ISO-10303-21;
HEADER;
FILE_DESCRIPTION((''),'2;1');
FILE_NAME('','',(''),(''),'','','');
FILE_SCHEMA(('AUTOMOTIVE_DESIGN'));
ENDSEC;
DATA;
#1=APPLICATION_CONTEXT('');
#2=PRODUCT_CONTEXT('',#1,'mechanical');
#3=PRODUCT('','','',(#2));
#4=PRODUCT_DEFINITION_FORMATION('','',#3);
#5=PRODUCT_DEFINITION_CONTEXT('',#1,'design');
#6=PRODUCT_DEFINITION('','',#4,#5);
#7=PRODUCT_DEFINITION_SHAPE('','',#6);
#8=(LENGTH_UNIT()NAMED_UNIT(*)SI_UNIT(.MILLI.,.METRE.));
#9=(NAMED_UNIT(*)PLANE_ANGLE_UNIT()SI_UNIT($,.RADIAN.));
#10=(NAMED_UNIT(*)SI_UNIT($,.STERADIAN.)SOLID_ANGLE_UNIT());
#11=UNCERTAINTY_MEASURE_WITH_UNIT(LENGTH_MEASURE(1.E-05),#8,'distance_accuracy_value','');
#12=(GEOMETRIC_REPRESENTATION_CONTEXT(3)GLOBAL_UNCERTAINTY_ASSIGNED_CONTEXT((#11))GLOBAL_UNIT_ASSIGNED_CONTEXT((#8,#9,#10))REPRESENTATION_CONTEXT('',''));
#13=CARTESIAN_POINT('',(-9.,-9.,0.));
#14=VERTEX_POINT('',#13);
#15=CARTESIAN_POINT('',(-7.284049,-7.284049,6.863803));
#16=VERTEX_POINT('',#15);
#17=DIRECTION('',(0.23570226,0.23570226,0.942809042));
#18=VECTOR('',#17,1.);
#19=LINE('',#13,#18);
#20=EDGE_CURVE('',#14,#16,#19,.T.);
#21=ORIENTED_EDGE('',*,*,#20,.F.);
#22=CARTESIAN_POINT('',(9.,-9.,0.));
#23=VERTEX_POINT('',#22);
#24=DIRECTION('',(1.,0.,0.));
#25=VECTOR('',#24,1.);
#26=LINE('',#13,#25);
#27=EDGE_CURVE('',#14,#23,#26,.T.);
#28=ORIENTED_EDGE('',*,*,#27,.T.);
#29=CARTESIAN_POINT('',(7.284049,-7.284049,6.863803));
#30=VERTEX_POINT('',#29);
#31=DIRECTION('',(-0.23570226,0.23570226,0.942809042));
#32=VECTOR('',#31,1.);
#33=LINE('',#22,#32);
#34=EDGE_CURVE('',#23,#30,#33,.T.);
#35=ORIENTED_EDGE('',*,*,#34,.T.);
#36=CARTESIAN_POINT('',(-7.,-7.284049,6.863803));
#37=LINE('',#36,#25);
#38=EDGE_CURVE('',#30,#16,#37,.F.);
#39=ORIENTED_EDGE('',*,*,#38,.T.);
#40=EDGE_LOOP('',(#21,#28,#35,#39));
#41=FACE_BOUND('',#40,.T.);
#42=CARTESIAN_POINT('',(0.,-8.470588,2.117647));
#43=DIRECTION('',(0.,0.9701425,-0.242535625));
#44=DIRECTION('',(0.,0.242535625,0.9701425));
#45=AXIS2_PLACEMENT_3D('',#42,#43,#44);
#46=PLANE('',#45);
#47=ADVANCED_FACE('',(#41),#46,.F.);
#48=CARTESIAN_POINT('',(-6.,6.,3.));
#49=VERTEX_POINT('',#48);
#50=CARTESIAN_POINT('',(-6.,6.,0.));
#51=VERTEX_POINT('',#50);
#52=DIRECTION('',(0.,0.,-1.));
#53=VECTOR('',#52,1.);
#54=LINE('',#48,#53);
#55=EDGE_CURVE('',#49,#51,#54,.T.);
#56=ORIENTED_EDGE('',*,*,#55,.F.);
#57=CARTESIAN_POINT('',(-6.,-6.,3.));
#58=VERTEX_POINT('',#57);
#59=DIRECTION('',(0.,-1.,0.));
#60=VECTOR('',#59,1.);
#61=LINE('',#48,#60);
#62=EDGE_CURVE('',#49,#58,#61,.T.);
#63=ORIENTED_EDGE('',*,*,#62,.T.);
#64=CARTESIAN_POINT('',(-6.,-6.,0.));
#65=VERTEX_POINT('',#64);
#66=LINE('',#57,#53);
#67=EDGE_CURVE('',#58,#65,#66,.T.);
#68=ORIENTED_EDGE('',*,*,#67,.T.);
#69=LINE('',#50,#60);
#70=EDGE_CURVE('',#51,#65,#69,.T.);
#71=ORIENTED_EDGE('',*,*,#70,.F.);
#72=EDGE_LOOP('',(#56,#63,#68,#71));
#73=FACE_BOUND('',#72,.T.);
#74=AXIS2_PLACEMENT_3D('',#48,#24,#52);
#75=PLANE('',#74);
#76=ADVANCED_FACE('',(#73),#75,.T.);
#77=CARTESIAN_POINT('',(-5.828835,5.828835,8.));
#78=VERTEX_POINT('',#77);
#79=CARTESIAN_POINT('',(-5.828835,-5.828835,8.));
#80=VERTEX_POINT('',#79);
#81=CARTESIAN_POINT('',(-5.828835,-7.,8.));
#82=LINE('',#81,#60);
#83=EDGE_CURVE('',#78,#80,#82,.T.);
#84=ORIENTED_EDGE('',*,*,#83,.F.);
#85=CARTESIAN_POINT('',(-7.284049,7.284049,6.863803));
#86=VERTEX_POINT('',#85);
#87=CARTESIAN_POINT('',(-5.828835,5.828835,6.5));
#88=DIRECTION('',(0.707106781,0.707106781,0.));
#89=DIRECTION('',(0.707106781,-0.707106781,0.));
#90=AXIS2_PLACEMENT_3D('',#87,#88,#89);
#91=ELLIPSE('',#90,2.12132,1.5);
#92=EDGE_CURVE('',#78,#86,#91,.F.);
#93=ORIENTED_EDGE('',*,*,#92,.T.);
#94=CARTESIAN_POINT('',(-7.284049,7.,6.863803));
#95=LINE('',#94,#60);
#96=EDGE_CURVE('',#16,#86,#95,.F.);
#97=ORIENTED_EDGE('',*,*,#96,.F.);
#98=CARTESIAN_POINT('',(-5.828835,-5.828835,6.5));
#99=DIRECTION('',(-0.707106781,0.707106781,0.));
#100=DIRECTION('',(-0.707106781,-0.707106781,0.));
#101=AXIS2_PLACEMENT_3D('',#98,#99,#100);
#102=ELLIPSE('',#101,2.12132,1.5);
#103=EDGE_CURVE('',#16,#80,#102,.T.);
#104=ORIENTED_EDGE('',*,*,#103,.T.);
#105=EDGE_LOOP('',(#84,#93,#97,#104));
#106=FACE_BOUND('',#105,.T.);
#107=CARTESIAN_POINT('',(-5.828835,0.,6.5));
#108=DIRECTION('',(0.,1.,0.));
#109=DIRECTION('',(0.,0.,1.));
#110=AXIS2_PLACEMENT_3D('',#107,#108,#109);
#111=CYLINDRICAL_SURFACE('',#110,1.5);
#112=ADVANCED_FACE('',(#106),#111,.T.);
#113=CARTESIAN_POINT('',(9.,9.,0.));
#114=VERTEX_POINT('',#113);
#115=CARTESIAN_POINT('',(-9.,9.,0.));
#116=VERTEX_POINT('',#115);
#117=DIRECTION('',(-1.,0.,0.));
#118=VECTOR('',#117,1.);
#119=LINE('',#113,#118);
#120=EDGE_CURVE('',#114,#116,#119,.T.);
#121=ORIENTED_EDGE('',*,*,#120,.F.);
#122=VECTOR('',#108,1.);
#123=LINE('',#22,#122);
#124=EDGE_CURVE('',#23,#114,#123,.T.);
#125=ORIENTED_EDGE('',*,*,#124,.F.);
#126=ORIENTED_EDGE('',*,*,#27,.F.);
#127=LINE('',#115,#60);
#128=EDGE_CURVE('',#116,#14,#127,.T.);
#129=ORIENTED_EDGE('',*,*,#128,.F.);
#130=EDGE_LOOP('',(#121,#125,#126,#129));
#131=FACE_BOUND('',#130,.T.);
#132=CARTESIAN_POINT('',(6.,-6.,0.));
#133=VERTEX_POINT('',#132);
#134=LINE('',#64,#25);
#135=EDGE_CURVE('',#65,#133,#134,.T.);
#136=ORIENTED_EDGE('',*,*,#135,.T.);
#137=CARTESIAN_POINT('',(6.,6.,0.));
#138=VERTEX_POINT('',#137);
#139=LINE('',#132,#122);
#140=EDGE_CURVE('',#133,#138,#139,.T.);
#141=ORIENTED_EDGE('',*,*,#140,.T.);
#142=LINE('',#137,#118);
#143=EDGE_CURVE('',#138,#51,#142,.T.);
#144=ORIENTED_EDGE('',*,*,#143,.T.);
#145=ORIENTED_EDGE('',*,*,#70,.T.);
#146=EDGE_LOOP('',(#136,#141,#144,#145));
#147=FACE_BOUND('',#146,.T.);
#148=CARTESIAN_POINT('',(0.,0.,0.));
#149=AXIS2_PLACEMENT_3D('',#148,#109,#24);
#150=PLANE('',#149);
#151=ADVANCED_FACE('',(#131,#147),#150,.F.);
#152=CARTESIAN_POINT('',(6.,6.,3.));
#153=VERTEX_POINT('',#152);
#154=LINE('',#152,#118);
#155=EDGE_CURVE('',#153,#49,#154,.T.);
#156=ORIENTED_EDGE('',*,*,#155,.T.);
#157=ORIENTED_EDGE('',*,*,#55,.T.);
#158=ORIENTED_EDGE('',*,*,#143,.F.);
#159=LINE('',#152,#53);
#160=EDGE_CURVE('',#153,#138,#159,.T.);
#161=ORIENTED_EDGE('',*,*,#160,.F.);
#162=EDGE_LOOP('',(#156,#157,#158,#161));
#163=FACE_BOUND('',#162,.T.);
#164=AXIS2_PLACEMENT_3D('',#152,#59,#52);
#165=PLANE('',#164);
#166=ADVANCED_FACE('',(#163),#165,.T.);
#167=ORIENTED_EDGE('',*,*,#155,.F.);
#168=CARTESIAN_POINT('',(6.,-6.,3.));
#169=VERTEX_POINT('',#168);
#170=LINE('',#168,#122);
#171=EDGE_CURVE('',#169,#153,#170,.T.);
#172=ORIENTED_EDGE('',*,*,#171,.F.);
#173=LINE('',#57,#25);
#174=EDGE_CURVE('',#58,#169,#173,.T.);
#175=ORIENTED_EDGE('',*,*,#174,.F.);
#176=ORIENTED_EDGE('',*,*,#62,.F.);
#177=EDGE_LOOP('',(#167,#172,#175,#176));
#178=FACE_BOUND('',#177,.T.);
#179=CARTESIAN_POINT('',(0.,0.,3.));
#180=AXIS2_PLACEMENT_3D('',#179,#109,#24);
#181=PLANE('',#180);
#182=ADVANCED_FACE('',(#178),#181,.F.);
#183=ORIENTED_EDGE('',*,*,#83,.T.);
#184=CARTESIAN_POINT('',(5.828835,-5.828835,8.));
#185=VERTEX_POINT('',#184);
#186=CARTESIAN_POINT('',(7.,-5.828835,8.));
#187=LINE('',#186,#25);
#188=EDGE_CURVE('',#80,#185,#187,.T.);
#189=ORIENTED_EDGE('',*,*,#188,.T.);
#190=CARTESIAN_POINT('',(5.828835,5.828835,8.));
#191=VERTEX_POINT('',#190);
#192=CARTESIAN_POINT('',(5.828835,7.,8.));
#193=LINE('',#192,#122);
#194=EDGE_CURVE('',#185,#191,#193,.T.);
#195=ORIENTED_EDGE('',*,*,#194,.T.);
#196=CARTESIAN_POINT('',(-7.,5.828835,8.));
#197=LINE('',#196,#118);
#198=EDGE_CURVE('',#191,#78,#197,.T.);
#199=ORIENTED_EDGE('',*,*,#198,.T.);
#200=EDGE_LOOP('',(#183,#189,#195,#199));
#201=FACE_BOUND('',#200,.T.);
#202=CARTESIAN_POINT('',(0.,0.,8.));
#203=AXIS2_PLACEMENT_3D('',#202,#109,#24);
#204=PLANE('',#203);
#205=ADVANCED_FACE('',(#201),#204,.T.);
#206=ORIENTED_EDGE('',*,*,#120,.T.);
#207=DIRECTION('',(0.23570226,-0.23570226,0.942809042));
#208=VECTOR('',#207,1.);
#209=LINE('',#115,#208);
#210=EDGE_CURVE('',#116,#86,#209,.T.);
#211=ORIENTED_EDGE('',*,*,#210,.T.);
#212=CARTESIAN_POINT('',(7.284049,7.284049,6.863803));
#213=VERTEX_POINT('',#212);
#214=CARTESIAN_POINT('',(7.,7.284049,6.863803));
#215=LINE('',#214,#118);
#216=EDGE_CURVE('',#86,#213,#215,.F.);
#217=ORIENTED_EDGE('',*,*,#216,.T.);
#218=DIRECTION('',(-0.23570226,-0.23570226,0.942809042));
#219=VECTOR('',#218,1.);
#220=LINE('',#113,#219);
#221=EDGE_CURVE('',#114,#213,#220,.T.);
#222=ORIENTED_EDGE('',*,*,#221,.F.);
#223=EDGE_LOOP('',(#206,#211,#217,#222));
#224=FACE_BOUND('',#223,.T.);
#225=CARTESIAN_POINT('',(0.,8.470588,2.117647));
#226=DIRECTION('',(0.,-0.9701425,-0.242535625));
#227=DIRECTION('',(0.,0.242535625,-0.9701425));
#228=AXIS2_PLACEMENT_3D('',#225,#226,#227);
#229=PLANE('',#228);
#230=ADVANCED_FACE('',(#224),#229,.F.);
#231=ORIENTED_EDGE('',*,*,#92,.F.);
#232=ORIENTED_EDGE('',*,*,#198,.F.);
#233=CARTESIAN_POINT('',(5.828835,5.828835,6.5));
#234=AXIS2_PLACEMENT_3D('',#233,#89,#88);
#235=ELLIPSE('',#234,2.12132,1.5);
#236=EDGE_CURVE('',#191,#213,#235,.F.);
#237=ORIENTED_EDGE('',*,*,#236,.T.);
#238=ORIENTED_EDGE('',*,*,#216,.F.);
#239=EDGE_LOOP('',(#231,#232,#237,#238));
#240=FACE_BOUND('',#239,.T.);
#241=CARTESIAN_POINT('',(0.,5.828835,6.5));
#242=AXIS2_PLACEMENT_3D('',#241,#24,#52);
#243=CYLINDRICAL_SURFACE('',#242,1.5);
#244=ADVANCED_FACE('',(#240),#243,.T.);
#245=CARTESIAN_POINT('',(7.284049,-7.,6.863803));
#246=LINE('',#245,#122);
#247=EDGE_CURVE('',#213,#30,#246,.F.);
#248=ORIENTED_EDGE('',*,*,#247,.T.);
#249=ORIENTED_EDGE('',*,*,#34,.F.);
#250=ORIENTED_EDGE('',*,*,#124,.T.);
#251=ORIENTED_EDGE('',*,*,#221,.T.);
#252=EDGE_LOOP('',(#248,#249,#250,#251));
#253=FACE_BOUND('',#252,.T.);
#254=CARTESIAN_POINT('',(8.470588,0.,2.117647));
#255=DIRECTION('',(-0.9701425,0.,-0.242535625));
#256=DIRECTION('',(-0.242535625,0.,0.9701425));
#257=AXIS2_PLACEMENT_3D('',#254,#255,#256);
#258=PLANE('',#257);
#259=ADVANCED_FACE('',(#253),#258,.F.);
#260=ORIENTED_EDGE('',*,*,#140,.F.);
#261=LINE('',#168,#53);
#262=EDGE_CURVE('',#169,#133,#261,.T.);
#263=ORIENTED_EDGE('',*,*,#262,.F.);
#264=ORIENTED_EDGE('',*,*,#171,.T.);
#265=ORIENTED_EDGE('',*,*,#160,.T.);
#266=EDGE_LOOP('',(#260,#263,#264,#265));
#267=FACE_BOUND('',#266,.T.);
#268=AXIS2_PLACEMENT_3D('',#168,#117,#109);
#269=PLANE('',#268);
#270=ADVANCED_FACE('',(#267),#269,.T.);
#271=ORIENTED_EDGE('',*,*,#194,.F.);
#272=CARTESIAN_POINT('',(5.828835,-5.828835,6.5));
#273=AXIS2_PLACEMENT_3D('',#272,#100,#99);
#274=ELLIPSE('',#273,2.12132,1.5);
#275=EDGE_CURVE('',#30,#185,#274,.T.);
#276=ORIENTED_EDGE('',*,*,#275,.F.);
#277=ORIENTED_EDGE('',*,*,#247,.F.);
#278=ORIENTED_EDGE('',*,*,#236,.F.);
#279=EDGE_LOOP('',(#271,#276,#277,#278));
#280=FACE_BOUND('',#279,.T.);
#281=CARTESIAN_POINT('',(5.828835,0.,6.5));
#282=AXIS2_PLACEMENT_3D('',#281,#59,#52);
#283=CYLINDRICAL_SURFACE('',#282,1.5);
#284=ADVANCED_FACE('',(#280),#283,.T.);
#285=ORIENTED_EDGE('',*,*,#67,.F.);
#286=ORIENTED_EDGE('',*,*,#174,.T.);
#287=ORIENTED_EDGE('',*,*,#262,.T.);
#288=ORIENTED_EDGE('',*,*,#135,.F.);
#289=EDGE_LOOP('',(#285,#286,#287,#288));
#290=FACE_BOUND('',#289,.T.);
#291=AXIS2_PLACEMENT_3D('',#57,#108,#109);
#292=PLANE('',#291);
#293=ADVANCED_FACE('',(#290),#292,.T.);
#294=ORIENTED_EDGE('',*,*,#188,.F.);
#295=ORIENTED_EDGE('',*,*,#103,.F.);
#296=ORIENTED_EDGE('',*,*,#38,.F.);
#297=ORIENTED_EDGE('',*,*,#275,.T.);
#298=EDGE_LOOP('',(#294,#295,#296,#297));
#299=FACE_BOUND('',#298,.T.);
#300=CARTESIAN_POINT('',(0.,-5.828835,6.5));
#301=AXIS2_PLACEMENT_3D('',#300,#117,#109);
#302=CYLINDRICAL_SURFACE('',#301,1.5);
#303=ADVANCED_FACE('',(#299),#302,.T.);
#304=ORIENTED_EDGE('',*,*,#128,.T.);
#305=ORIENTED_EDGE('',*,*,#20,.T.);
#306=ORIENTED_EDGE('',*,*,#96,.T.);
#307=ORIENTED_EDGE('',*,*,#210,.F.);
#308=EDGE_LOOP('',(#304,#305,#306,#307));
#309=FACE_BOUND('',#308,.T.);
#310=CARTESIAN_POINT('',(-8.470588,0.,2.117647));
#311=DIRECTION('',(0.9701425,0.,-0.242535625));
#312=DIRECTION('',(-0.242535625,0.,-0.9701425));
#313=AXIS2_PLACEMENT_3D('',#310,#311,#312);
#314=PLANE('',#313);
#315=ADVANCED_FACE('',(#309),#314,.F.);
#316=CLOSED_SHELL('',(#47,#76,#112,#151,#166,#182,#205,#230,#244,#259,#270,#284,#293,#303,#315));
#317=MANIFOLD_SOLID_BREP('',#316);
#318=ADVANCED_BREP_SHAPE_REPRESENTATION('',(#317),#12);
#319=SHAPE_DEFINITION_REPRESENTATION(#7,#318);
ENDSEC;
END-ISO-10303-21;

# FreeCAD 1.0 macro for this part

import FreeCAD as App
import Part
import Sketcher

V = App.Vector


def edges_at(feature, points):
    """Names of the edges that pass closest to the given points."""
    edges = feature.Shape.Edges
    near = lambda p: min(range(len(edges)), key=lambda i: edges[i].distToShape(Part.Vertex(*p))[0])
    return sorted({f"Edge{near(p) + 1}" for p in points})


def add_polygon(sketch, points):
    """Adds a closed chain of lines whose ends are joined by coincident constraints."""
    first, n = sketch.GeometryCount, len(points)
    for a, b in zip(points, points[1:] + points[:1]):
        sketch.addGeometry(Part.LineSegment(App.Vector(*a, 0), App.Vector(*b, 0)), False)
    for i in range(n):
        sketch.addConstraint(Sketcher.Constraint("Coincident", first + i, 2, first + (i + 1) % n, 1))

doc = App.newDocument("Part")
body = doc.addObject("PartDesign::Body", "Body")

sketch1 = doc.addObject("Sketcher::SketchObject", "Sketch")
body.addObject(sketch1)
sketch1.AttachmentSupport = (doc.XY_Plane, [""])
sketch1.MapMode = "FlatFace"
add_polygon(sketch1, [(-9, -9), (9, -9), (9, 9), (-9, 9)])
sketch1.addConstraint([
    Sketcher.Constraint("Horizontal", 0),
    Sketcher.Constraint("Vertical", 1),
    Sketcher.Constraint("Horizontal", 2),
    Sketcher.Constraint("Vertical", 3),
    Sketcher.Constraint("Symmetric", 0, 2, 2, 2, -1, 1),
    Sketcher.Constraint("Equal", 2, 1),
    Sketcher.Constraint("DistanceX", 0, 1, 0, 2, 18.0),
])

sketch2 = doc.addObject("Sketcher::SketchObject", "Sketch001")
body.addObject(sketch2)
sketch2.AttachmentSupport = (doc.XY_Plane, [""])
sketch2.MapMode = "FlatFace"
sketch2.AttachmentOffset = App.Placement(V(0, 0, 8), App.Rotation())
add_polygon(sketch2, [(-7, -7), (7, -7), (7, 7), (-7, 7)])
sketch2.addConstraint([
    Sketcher.Constraint("Horizontal", 0),
    Sketcher.Constraint("Vertical", 1),
    Sketcher.Constraint("Horizontal", 2),
    Sketcher.Constraint("Vertical", 3),
    Sketcher.Constraint("Symmetric", 0, 2, 2, 2, -1, 1),
    Sketcher.Constraint("Equal", 2, 1),
    Sketcher.Constraint("DistanceX", 0, 1, 0, 2, 14.0),
])

additiveloft = doc.addObject("PartDesign::AdditiveLoft", "AdditiveLoft")
body.addObject(additiveloft)
additiveloft.Profile = sketch1
additiveloft.Sections = [sketch2]

sketch3 = doc.addObject("Sketcher::SketchObject", "Sketch002")
body.addObject(sketch3)
sketch3.AttachmentSupport = (doc.XY_Plane, [""])
sketch3.MapMode = "FlatFace"
add_polygon(sketch3, [(-6, 6), (-6, -6), (6, -6), (6, 6)])
sketch3.addConstraint([
    Sketcher.Constraint("Vertical", 0),
    Sketcher.Constraint("Horizontal", 1),
    Sketcher.Constraint("Vertical", 2),
    Sketcher.Constraint("Horizontal", 3),
    Sketcher.Constraint("Symmetric", 0, 2, 2, 2, -1, 1),
    Sketcher.Constraint("Equal", 3, 0),
    Sketcher.Constraint("DistanceX", 1, 1, 1, 2, 12.0),
])
pocket1 = doc.addObject("PartDesign::Pocket", "Pocket")
body.addObject(pocket1)
pocket1.Profile = sketch3
pocket1.Length = 3
pocket1.Reversed = True
doc.recompute()

fillet = doc.addObject("PartDesign::Fillet", "Fillet")
body.addObject(fillet)
fillet.Base = (pocket1, edges_at(pocket1, [
    (0, 7, 8),
    (7, 0, 8),
    (0, -7, 8),
    (-7, 0, 8),
]))
fillet.Radius = 1.5

doc.recompute()
